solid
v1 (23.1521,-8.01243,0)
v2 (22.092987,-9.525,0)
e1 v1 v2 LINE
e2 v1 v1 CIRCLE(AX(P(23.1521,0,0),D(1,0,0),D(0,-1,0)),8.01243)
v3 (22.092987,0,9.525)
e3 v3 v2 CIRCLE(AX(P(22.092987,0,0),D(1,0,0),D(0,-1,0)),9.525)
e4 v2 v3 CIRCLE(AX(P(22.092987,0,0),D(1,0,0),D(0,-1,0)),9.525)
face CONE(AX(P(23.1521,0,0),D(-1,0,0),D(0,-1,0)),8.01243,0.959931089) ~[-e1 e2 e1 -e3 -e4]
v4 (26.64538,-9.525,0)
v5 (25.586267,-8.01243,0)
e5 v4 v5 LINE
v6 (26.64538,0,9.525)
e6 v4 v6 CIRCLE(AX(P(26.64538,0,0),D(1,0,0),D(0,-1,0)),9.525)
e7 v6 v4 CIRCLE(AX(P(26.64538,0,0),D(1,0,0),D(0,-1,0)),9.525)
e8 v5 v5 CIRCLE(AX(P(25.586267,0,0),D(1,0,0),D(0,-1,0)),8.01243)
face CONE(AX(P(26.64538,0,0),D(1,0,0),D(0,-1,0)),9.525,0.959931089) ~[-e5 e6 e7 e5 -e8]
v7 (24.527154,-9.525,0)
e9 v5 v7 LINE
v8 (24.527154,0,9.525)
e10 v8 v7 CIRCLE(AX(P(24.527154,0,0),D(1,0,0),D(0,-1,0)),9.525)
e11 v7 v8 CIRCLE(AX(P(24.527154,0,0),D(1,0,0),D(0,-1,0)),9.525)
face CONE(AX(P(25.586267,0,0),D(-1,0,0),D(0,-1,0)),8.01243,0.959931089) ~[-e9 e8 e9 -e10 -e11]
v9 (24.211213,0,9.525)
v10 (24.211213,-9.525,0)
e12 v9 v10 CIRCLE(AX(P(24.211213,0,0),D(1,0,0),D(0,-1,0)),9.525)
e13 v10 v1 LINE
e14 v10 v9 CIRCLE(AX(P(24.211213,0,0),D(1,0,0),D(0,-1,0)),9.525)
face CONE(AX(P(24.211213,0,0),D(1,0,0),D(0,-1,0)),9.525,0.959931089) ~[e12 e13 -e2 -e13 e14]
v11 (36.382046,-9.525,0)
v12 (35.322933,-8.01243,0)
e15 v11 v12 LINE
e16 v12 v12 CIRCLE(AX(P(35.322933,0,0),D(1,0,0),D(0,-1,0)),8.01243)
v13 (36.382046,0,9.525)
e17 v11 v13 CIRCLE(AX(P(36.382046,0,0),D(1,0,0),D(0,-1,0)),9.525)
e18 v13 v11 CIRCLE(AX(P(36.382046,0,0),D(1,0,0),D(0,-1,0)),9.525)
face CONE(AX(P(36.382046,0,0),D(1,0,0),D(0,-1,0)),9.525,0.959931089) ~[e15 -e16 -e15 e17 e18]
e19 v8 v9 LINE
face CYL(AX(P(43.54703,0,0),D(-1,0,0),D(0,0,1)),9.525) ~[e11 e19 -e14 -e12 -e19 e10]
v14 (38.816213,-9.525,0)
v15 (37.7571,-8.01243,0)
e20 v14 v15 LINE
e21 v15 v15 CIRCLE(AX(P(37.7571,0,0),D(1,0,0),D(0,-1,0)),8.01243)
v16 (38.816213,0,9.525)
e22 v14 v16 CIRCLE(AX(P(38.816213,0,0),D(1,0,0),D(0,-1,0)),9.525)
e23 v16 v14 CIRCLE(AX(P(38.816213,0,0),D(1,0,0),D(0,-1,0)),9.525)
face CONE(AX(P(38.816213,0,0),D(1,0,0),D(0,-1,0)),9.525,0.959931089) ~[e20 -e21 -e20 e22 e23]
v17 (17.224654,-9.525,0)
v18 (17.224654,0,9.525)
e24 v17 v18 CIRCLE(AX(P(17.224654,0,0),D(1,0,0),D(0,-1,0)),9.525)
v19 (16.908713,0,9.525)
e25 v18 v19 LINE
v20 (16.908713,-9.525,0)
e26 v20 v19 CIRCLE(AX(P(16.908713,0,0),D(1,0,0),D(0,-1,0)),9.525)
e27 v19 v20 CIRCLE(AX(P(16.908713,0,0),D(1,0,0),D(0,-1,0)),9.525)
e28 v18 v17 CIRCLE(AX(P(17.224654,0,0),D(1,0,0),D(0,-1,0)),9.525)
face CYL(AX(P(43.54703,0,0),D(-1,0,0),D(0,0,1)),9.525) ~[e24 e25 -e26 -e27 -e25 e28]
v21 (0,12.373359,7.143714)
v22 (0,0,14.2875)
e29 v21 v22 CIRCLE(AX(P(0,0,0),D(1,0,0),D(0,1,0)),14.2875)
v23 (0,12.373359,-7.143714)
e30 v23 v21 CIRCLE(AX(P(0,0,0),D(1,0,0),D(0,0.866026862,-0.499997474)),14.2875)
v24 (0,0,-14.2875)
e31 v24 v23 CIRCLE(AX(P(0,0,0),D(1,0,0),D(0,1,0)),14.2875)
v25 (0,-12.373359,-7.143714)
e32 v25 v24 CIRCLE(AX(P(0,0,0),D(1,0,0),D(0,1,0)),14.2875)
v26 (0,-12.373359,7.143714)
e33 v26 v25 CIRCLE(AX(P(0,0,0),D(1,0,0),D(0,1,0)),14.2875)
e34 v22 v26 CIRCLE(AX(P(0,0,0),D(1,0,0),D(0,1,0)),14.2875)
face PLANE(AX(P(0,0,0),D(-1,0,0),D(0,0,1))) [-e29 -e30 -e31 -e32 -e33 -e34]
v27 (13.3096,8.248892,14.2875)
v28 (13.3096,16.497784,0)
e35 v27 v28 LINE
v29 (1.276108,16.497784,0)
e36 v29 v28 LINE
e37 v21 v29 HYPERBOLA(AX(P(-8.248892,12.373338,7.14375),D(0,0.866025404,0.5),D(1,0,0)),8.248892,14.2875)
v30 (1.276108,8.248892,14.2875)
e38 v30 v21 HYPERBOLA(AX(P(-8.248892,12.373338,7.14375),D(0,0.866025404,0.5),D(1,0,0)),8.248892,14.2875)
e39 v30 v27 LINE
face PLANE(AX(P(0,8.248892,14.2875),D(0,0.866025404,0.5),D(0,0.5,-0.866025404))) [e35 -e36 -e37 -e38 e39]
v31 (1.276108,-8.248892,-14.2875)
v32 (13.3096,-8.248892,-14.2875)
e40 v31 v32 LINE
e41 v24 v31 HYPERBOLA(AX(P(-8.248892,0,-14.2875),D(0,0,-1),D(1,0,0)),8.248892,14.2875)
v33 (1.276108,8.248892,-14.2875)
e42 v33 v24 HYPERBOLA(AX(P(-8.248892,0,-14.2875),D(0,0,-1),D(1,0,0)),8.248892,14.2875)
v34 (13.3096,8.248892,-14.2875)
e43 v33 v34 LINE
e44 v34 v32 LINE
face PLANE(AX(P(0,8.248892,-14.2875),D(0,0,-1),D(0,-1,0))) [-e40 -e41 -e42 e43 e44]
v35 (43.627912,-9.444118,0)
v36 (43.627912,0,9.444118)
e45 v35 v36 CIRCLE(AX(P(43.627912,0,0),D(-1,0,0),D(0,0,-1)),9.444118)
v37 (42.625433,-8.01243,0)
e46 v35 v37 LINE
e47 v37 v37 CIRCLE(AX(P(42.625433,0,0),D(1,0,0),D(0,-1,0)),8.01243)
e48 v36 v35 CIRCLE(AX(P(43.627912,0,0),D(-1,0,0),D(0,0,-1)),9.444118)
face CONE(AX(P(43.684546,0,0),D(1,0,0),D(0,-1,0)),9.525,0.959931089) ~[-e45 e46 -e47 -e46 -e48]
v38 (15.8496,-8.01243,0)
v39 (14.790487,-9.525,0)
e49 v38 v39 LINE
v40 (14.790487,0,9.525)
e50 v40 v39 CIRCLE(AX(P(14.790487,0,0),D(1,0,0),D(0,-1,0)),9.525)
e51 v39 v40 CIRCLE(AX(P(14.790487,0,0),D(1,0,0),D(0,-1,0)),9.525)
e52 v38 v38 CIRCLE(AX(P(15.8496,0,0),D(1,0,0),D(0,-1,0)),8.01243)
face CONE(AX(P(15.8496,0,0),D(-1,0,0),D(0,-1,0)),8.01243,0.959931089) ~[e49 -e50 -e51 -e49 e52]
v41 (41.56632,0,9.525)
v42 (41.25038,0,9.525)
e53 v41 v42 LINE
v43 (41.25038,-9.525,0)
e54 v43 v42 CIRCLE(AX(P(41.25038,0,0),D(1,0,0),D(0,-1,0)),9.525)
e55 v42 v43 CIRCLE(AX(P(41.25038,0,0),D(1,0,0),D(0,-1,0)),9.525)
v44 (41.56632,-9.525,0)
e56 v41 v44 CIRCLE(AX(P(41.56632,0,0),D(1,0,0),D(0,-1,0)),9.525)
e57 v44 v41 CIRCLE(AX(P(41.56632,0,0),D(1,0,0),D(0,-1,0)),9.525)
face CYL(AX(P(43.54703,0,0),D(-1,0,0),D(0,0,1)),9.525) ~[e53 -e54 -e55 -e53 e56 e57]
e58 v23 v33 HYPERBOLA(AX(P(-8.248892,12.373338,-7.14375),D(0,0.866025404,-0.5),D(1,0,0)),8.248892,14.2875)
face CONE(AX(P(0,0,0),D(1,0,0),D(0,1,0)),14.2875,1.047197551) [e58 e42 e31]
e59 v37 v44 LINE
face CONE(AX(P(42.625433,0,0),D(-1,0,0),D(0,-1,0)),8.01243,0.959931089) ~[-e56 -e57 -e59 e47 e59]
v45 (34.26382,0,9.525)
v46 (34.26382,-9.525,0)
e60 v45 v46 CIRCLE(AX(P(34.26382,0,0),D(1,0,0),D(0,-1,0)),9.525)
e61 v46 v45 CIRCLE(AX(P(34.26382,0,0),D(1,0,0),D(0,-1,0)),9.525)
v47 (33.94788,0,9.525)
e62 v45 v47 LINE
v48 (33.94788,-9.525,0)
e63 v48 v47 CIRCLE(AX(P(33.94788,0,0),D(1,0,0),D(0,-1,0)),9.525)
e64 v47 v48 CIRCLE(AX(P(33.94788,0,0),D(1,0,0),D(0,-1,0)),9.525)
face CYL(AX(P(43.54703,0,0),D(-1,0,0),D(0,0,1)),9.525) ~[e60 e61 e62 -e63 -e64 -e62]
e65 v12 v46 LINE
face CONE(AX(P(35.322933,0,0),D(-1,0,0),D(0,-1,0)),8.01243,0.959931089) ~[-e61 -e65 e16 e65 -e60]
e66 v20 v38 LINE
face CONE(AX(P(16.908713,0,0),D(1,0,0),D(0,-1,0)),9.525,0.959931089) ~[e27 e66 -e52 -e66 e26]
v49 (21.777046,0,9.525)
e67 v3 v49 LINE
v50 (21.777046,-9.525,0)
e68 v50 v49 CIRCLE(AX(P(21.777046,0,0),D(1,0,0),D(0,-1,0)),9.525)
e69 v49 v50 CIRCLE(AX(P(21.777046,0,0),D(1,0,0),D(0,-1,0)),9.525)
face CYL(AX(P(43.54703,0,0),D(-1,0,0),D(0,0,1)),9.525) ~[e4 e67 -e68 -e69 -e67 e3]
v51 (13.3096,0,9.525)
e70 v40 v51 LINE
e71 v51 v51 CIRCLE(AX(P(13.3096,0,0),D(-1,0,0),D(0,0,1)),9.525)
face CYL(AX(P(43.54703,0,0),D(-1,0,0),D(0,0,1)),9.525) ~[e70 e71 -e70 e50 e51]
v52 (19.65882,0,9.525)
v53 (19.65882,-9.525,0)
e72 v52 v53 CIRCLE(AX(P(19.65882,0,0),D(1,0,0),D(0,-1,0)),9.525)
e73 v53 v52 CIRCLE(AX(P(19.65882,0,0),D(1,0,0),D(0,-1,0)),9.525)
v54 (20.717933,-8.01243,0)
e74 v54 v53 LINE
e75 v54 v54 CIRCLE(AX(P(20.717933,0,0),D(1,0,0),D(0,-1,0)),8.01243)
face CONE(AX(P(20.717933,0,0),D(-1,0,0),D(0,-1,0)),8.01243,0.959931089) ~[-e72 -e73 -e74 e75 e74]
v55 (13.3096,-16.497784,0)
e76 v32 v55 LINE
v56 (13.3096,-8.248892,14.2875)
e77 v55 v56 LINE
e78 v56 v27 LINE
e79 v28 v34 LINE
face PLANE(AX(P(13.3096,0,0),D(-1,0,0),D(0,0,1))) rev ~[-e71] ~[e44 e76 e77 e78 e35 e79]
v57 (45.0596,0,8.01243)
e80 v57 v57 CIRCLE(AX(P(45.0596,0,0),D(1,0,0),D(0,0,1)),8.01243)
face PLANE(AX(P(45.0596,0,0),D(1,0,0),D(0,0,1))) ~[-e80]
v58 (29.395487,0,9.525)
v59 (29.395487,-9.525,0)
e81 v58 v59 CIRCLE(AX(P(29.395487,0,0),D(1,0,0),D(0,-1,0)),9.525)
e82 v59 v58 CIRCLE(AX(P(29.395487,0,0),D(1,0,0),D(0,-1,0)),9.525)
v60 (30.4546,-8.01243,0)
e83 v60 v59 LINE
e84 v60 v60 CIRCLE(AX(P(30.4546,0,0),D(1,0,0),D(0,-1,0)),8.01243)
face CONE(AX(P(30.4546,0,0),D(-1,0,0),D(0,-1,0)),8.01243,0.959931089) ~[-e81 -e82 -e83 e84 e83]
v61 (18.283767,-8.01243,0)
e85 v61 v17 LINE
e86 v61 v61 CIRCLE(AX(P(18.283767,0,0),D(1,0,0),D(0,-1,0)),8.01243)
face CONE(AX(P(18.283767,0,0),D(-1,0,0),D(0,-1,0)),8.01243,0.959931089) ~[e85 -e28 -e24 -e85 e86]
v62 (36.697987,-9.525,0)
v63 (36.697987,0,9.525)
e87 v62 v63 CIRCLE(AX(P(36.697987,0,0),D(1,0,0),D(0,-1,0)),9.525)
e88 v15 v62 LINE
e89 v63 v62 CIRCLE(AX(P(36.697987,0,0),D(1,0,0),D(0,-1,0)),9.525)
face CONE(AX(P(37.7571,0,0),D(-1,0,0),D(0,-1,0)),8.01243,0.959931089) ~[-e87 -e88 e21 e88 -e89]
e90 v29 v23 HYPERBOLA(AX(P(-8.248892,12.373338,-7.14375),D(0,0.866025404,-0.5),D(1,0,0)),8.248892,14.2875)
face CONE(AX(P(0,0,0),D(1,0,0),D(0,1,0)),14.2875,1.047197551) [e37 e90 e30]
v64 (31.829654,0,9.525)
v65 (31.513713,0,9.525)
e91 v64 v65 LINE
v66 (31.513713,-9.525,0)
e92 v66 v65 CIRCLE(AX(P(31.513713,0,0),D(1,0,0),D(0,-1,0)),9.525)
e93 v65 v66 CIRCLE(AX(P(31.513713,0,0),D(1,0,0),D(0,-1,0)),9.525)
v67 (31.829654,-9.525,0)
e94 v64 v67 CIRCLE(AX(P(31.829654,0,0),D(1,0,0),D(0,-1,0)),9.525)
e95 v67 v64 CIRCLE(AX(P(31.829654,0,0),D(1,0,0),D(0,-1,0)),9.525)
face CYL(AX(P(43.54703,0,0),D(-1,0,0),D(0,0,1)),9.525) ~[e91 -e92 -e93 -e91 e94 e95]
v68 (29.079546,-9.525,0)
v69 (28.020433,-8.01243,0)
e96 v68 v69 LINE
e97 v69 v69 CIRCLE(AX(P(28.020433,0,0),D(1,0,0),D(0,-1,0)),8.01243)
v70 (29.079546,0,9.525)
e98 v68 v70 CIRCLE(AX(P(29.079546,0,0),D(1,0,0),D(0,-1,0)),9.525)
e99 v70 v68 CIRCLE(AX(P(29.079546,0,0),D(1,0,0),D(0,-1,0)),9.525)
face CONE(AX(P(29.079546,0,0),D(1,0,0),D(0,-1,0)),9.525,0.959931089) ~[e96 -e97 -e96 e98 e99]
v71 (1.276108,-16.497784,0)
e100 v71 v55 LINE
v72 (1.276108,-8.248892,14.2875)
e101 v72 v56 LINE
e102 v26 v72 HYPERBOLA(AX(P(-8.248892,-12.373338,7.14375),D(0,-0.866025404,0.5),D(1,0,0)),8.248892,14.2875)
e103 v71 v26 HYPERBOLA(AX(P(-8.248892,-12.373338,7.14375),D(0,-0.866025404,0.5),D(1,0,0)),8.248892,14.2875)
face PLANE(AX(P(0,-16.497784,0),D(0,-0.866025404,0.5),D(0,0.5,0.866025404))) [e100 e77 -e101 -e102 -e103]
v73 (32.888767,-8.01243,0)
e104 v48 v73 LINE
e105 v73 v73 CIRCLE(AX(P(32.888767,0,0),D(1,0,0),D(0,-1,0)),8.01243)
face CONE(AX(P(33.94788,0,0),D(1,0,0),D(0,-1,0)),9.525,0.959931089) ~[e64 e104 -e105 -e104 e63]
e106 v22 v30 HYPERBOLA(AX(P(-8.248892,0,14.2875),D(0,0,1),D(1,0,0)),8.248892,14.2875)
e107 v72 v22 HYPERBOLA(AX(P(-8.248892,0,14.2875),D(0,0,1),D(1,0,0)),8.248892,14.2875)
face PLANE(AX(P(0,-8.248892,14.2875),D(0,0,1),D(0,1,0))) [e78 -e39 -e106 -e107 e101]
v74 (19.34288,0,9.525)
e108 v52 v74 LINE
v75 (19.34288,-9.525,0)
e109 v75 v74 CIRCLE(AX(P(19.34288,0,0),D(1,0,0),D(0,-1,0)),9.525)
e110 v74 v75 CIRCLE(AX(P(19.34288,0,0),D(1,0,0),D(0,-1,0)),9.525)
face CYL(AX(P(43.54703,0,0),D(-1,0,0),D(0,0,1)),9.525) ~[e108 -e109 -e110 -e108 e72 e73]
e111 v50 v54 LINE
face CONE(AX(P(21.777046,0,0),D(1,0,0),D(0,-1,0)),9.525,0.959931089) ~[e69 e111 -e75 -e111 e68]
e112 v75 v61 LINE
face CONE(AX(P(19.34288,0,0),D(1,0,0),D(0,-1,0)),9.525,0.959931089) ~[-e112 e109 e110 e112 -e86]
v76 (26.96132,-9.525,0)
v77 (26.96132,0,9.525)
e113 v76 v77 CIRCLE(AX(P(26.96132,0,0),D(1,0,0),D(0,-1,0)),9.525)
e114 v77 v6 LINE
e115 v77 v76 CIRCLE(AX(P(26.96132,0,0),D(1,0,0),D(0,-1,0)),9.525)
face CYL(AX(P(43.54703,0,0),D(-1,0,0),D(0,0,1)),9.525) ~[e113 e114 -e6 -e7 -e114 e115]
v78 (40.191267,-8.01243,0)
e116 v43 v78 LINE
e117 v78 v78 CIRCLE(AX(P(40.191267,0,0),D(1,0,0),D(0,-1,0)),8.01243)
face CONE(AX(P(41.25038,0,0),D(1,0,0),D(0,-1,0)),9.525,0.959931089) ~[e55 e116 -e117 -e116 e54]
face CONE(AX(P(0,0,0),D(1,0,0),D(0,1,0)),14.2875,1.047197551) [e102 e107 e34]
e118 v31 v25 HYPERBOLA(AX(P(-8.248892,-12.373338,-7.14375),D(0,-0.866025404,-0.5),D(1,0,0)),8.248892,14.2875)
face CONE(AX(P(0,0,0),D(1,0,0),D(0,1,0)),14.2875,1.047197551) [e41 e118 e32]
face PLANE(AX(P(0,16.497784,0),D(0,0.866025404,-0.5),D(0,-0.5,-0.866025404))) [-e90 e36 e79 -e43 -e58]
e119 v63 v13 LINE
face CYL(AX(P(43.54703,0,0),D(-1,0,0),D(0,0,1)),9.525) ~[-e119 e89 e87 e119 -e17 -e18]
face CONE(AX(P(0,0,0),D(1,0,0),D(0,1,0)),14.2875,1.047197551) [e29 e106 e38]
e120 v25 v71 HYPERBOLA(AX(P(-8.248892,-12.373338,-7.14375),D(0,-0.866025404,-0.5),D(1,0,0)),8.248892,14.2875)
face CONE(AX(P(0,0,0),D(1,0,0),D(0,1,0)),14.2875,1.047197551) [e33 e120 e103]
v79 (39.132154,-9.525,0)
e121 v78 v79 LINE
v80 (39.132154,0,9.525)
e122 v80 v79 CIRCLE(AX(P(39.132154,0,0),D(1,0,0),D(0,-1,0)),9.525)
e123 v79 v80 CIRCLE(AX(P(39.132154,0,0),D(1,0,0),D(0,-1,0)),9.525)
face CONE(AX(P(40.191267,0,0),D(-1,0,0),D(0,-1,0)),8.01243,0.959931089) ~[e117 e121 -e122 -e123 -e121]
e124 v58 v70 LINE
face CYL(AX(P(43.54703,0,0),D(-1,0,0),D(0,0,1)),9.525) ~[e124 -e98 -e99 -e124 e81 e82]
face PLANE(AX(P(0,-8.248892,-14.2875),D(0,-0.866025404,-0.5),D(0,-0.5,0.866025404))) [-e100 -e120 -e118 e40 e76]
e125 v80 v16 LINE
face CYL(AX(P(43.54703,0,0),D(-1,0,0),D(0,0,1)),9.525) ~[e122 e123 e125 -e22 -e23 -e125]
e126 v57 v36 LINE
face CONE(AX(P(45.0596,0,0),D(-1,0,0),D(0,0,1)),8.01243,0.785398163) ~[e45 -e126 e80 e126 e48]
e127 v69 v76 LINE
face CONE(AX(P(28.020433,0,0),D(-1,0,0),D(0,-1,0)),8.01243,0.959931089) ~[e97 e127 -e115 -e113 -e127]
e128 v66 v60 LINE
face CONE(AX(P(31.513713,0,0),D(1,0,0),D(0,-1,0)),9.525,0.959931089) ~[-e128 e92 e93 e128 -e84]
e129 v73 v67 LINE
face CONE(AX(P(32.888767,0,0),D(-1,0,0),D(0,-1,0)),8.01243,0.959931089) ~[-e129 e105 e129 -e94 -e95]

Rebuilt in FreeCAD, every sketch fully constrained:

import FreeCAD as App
import Part
import Sketcher
Q = App.Units.Quantity


def add_polygon(sketch, points):
    """Adds a closed chain of lines whose ends are joined by coincident constraints."""
    first, n = sketch.GeometryCount, len(points)
    for a, b in zip(points, points[1:] + points[:1]):
        sketch.addGeometry(Part.LineSegment(App.Vector(*a, 0), App.Vector(*b, 0)), False)
    for i in range(n):
        sketch.addConstraint(Sketcher.Constraint("Coincident", first + i, 2, first + (i + 1) % n, 1))

doc = App.newDocument("Part")
params = doc.addObject("Spreadsheet::Sheet", "Params")
for row, (alias, value) in enumerate([
    ("pad1_length", "0.524 in"),
    ("sketch2_width", "1.774 in"),
    ("sketch2_height", "0.375 in"),
    ("revolution_angle", "360 deg"),
    ("sketch3_width", "0.5 in"),
    ("sketch3_height", "0.25 in"),
    ("groove_angle", "360 deg"),
    ("sketch4_height", "0.09375 in"),
    ("groove2_angle", "360 deg"),
    ("linearpattern_pitch", "2.434167 mm"),
], start=1):
    params.set(f"A{row}", alias)
    params.set(f"B{row}", "=" + value)
    params.setAlias(f"B{row}", alias)

body = doc.addObject("PartDesign::Body", "Body")

sketch1 = doc.addObject("Sketcher::SketchObject", "Sketch")
body.addObject(sketch1)
sketch1.AttachmentSupport = (doc.YZ_Plane, [""])
sketch1.MapMode = "FlatFace"
add_polygon(sketch1, [(-8, -14), (8, -14), (16, 0), (8, 14), (-8, 14), (-16, 0)])
sketch1.addConstraint(Sketcher.Constraint("Horizontal", 0))
sketch1.addConstraint(Sketcher.Constraint("Horizontal", 3))
sketch1.addConstraint(Sketcher.Constraint("Symmetric", 0, 2, 3, 2, -1, 1))
sketch1.addConstraint(Sketcher.Constraint("Symmetric", 1, 2, 4, 2, -1, 1))
sketch1.addConstraint(Sketcher.Constraint("PointOnObject", 1, 2, -1))
sketch1.addConstraint(Sketcher.Constraint("Parallel", 2, 5))
sketch1.addConstraint(Sketcher.Constraint("Vertical", 0, 2, 2, 2))
sketch1.addConstraint(Sketcher.Constraint("Angle", 1, Q("60 deg")))
sketch1.addConstraint(Sketcher.Constraint("DistanceY", 0, 2, -1, 1, Q("0.5625 in")))
sketch1.addConstraint(Sketcher.Constraint("DistanceX", 0, 1, 0, 2, Q("16.497784 mm")))
pad1 = doc.addObject("PartDesign::Pad", "Pad")
body.addObject(pad1)
pad1.Profile = sketch1
pad1.setExpression("Length", "Params.pad1_length")

sketch2 = doc.addObject("Sketcher::SketchObject", "Sketch001")
body.addObject(sketch2)
sketch2.AttachmentSupport = (doc.XY_Plane, [""])
sketch2.MapMode = "FlatFace"
add_polygon(sketch2, [(0, 0), (45.1, 0), (45.1, 8), (43.5, 9.5), (0, 9.5)])
sketch2.addConstraint(Sketcher.Constraint("Horizontal", 0))
sketch2.addConstraint(Sketcher.Constraint("Vertical", 1))
sketch2.addConstraint(Sketcher.Constraint("Horizontal", 3))
sketch2.addConstraint(Sketcher.Constraint("Vertical", 4))
sketch2.addConstraint(Sketcher.Constraint("Coincident", 4, 2, -1, 1))
sketch2.addConstraint(Sketcher.Constraint("Angle", 2, Q("135 deg")))
sketch2.addConstraint(Sketcher.Constraint("DistanceX", 0, 1, 0, 2, Q("1.774 in")))
sketch2.addConstraint(Sketcher.Constraint("DistanceY", 4, 2, 4, 1, Q("0.375 in")))
sketch2.addConstraint(Sketcher.Constraint("DistanceX", 3, 2, 3, 1, Q("43.54703 mm")))
sketch2.setExpression("Constraints[11]", "Params.sketch2_width")
sketch2.setExpression("Constraints[12]", "Params.sketch2_height")
revolution = doc.addObject("PartDesign::Revolution", "Revolution")
body.addObject(revolution)
revolution.Profile = sketch2
revolution.ReferenceAxis = (sketch2, ["H_Axis"])
revolution.setExpression("Angle", "Params.revolution_angle")

sketch3 = doc.addObject("Sketcher::SketchObject", "Sketch002")
body.addObject(sketch3)
sketch3.AttachmentSupport = (doc.XY_Plane, [""])
sketch3.MapMode = "FlatFace"
add_polygon(sketch3, [(0, 14), (5, 23), (5, 29), (-13, 29), (-13, 14)])
sketch3.addConstraint(Sketcher.Constraint("Vertical", 1))
sketch3.addConstraint(Sketcher.Constraint("Horizontal", 2))
sketch3.addConstraint(Sketcher.Constraint("Vertical", 3))
sketch3.addConstraint(Sketcher.Constraint("Horizontal", 4))
sketch3.addConstraint(Sketcher.Constraint("PointOnObject", 4, 2, -2))
sketch3.addConstraint(Sketcher.Constraint("DistanceX", 4, 1, 4, 2, Q("0.5 in")))
sketch3.addConstraint(Sketcher.Constraint("Angle", 0, Q("60 deg")))
sketch3.addConstraint(Sketcher.Constraint("DistanceY", 1, 1, 1, 2, Q("0.25 in")))
sketch3.addConstraint(Sketcher.Constraint("DistanceY", -1, 1, 3, 2, Q("0.5625 in")))
sketch3.addConstraint(Sketcher.Constraint("DistanceX", 2, 2, 2, 1, Q("17.642282 mm")))
sketch3.setExpression("Constraints[10]", "Params.sketch3_width")
sketch3.setExpression("Constraints[12]", "Params.sketch3_height")
groove = doc.addObject("PartDesign::Groove", "Groove")
body.addObject(groove)
groove.Profile = sketch3
groove.ReferenceAxis = (sketch3, ["H_Axis"])
groove.setExpression("Angle", "Params.groove_angle")

sketch4 = doc.addObject("Sketcher::SketchObject", "Sketch003")
body.addObject(sketch4)
sketch4.AttachmentSupport = (doc.XY_Plane, [""])
sketch4.MapMode = "FlatFace"
add_polygon(sketch4, [(15.8, -8), (14.8, -9.5), (14.8, -11.9), (16.9, -11.9), (16.9, -9.5)])
sketch4.addConstraint(Sketcher.Constraint("Vertical", 1))
sketch4.addConstraint(Sketcher.Constraint("Horizontal", 2))
sketch4.addConstraint(Sketcher.Constraint("Vertical", 3))
sketch4.addConstraint(Sketcher.Constraint("Horizontal", 0, 2, 3, 2))
sketch4.addConstraint(Sketcher.Constraint("Equal", 0, 4))
sketch4.addConstraint(Sketcher.Constraint("Angle", 0, Q("-125 deg")))
sketch4.addConstraint(Sketcher.Constraint("DistanceY", 1, 2, 1, 1, Q("0.09375 in")))
sketch4.addConstraint(Sketcher.Constraint("DistanceY", 0, 2, -1, 1, Q("0.375 in")))
sketch4.addConstraint(Sketcher.Constraint("DistanceX", -1, 1, 4, 2, Q("0.624 in")))
sketch4.addConstraint(Sketcher.Constraint("DistanceY", 2, 2, 4, 2, Q("0.1533 in")))
sketch4.setExpression("Constraints[11]", "Params.sketch4_height")
groove2 = doc.addObject("PartDesign::Groove", "Groove001")
body.addObject(groove2)
groove2.Profile = sketch4
groove2.ReferenceAxis = (sketch4, ["H_Axis"])
groove2.setExpression("Angle", "Params.groove2_angle")
doc.recompute()

linearpattern = doc.addObject("PartDesign::LinearPattern", "LinearPattern")
body.addObject(linearpattern)
linearpattern.Originals = [groove2]
linearpattern.Direction = (doc.X_Axis, [""])
linearpattern.Mode = "offset"
linearpattern.setExpression("Offset", "Params.linearpattern_pitch")
linearpattern.Occurrences = 12
body.Tip = linearpattern

doc.recompute()
